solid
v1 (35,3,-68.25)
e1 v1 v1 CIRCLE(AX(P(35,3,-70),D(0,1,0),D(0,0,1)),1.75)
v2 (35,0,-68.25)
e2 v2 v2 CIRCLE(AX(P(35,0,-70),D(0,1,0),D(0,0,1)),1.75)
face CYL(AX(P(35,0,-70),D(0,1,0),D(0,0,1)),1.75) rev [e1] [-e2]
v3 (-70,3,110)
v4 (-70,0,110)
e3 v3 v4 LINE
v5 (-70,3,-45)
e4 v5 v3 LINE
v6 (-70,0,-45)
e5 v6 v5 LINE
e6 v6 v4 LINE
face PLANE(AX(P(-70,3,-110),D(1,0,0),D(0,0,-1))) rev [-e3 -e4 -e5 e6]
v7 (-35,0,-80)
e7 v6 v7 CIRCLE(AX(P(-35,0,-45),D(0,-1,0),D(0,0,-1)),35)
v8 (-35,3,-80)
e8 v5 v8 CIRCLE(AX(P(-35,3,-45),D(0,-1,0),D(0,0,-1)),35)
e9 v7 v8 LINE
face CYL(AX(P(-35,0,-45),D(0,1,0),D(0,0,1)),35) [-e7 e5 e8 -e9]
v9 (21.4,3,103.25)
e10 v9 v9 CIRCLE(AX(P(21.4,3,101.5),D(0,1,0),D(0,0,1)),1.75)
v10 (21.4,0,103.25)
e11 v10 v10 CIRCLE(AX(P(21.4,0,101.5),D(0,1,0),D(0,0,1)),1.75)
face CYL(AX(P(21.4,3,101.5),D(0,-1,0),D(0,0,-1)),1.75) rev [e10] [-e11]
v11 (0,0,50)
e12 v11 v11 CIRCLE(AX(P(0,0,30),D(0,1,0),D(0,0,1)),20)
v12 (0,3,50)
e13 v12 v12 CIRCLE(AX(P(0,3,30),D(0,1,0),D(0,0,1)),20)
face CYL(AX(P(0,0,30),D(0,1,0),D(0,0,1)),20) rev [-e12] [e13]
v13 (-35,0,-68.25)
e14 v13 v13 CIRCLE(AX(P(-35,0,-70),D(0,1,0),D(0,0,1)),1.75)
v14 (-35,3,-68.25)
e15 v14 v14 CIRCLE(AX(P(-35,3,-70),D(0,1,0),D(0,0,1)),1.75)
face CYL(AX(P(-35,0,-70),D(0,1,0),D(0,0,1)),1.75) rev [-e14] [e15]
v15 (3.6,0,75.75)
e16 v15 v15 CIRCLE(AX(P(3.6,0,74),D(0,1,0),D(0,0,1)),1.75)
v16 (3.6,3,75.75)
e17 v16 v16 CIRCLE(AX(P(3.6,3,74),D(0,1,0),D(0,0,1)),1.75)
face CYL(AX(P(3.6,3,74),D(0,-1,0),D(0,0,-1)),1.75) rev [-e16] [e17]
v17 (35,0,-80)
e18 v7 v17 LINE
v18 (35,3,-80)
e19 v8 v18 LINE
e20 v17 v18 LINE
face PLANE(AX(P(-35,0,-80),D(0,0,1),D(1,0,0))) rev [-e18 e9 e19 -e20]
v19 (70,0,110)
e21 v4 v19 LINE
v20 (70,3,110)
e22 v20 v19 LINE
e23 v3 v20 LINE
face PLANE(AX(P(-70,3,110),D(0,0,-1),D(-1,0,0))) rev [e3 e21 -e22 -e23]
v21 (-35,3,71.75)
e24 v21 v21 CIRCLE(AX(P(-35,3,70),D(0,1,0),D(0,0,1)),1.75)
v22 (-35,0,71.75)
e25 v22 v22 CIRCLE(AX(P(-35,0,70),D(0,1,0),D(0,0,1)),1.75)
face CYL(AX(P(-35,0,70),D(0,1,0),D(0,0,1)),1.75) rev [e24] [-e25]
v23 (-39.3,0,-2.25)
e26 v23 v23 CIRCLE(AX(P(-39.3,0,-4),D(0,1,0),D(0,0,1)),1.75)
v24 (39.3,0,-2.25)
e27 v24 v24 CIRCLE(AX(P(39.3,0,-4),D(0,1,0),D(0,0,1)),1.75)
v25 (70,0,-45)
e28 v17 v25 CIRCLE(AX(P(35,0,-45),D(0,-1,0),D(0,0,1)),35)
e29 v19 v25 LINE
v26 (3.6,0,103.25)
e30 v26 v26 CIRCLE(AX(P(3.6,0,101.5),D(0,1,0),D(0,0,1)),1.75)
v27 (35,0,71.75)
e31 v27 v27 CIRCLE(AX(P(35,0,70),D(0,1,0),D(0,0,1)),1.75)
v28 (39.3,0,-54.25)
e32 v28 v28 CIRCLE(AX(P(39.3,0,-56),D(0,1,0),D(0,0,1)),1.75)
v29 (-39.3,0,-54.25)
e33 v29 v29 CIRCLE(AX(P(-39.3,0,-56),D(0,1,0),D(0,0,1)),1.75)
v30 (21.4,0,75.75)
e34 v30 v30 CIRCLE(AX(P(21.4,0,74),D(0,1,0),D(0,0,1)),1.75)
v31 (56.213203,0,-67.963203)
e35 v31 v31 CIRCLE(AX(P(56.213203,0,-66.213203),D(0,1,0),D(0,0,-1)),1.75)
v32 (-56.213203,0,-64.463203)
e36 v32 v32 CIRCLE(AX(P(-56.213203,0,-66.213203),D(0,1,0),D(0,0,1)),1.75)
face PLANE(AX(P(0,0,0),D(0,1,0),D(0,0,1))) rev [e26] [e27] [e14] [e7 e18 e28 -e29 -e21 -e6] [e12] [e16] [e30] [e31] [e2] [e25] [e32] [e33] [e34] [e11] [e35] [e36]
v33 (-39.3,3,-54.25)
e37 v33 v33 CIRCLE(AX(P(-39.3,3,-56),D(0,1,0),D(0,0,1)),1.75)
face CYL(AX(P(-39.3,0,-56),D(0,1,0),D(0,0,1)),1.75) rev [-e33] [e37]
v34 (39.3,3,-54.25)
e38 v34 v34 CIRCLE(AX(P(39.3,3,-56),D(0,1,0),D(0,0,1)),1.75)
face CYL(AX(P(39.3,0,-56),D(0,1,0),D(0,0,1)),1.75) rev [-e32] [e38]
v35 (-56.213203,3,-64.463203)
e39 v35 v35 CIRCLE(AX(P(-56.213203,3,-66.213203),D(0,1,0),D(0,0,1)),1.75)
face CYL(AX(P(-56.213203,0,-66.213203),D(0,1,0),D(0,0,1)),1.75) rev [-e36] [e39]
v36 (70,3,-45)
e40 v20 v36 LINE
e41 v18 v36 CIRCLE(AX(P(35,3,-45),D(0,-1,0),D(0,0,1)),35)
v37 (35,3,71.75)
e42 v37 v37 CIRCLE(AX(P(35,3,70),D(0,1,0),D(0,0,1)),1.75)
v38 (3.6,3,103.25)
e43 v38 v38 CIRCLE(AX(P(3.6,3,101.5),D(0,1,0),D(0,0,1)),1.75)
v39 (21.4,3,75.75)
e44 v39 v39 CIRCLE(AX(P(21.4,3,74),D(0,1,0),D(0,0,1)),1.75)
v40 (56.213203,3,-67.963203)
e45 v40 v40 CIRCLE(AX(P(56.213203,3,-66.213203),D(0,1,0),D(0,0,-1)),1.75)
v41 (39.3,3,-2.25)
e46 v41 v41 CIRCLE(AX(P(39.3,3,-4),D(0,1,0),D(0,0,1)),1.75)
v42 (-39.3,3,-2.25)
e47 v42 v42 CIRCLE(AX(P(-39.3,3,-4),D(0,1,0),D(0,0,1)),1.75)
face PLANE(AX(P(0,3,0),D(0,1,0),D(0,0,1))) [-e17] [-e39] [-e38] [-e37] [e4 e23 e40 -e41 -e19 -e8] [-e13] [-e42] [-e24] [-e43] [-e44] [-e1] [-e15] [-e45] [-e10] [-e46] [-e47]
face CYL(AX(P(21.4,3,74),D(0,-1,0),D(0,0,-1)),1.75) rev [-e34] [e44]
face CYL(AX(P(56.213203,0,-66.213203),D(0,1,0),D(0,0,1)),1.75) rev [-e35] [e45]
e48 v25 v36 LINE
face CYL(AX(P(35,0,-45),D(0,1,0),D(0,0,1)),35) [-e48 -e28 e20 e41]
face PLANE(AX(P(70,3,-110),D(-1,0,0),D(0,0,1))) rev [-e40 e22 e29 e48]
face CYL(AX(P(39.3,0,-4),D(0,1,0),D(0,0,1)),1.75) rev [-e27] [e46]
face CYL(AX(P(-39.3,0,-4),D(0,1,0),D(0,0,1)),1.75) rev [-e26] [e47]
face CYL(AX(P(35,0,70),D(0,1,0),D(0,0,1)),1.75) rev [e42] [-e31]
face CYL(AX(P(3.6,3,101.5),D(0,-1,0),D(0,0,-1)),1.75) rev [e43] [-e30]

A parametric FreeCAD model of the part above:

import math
import FreeCAD as App
import Part
import Sketcher

V = App.Vector


def add_polygon(sketch, points):
    """Adds a closed chain of lines whose ends are joined by coincident constraints."""
    first, n = sketch.GeometryCount, len(points)
    for a, b in zip(points, points[1:] + points[:1]):
        sketch.addGeometry(Part.LineSegment(App.Vector(*a, 0), App.Vector(*b, 0)), False)
    for i in range(n):
        sketch.addConstraint(Sketcher.Constraint("Coincident", first + i, 2, first + (i + 1) % n, 1))

doc = App.newDocument("Part")
body = doc.addObject("PartDesign::Body", "Body")

# Sketch on XZ plane
sketch1 = body.newObject("Sketcher::SketchObject", "Sketch")
sketch1.AttachmentSupport = (doc.getObject("XZ_Plane"), [""])
sketch1.MapMode = "FlatFace"
add_polygon(sketch1, [(-70, -110), (-70, 110), (70, 110), (70, -110)])  # lines 0-3
sketch1.addGeometry(Part.Circle(V(3.6, 101.5, 0), V(0, 0, 1), 1.8), False)  # 4
sketch1.addGeometry(Part.Circle(V(21.4, 101.5, 0), V(0, 0, 1), 1.8), False)  # 5
sketch1.addGeometry(Part.Circle(V(3.6, 74, 0), V(0, 0, 1), 1.8), False)  # 6
sketch1.addGeometry(Part.Circle(V(21.4, 74, 0), V(0, 0, 1), 1.8), False)  # 7
sketch1.addConstraint(Sketcher.Constraint("Vertical", 0))
sketch1.addConstraint(Sketcher.Constraint("Horizontal", 1))
sketch1.addConstraint(Sketcher.Constraint("Vertical", 2))
sketch1.addConstraint(Sketcher.Constraint("Horizontal", 3))
sketch1.addConstraint(Sketcher.Constraint("Equal", 4, 5))
sketch1.addConstraint(Sketcher.Constraint("Equal", 5, 6))
sketch1.addConstraint(Sketcher.Constraint("Equal", 6, 7))
sketch1.addConstraint(Sketcher.Constraint("Symmetric", 0, 2, 2, 2, -1, 1))
sketch1.addConstraint(Sketcher.Constraint("Horizontal", 4, 3, 5, 3))
sketch1.addConstraint(Sketcher.Constraint("Horizontal", 6, 3, 7, 3))
sketch1.addConstraint(Sketcher.Constraint("Vertical", 4, 3, 6, 3))
sketch1.addConstraint(Sketcher.Constraint("Vertical", 5, 3, 7, 3))
sketch1.addConstraint(Sketcher.Constraint("Diameter", 4, 3.5))
sketch1.addConstraint(Sketcher.Constraint("DistanceX", 1, 1, 1, 2, 140.0))
sketch1.addConstraint(Sketcher.Constraint("DistanceY", 0, 1, 0, 2, 220.0))
sketch1.addConstraint(Sketcher.Constraint("DistanceY", -1, 1, 6, 3, 74.0))
sketch1.addConstraint(Sketcher.Constraint("DistanceX", -1, 1, 4, 3, 3.6))
sketch1.addConstraint(Sketcher.Constraint("DistanceY", -1, 1, 4, 3, 101.5))
sketch1.addConstraint(Sketcher.Constraint("DistanceX", -1, 1, 5, 3, 21.4))
pad1 = body.newObject("PartDesign::Pad", "Pad")
pad1.Profile = sketch1
pad1.Length = 3
pad1.Reversed = True

# Sketch on XZ plane
sketch2 = body.newObject("Sketcher::SketchObject", "Sketch001")
sketch2.AttachmentSupport = (doc.getObject("XZ_Plane"), [""])
sketch2.MapMode = "FlatFace"
sketch2.AttachmentOffset = App.Placement(V(0, 0, -3), App.Rotation())
sketch2.addGeometry(Part.Circle(V(-35, -70, 0), V(0, 0, 1), 1.8), False)
sketch2.addGeometry(Part.Circle(V(35, -70, 0), V(0, 0, 1), 1.8), False)
sketch2.addGeometry(Part.Circle(V(-35, 70, 0), V(0, 0, 1), 1.8), False)
sketch2.addGeometry(Part.Circle(V(35, 70, 0), V(0, 0, 1), 1.8), False)
sketch2.addGeometry(Part.Circle(V(0, 30, 0), V(0, 0, 1), 20), False)
sketch2.addConstraint(Sketcher.Constraint("Equal", 0, 1))
sketch2.addConstraint(Sketcher.Constraint("Equal", 1, 2))
sketch2.addConstraint(Sketcher.Constraint("Equal", 2, 3))
sketch2.addConstraint(Sketcher.Constraint("Symmetric", 1, 3, 2, 3, -1, 1))
sketch2.addConstraint(Sketcher.Constraint("Symmetric", 0, 3, 3, 3, -1, 1))
sketch2.addConstraint(Sketcher.Constraint("Symmetric", 0, 3, 1, 3, -2))
sketch2.addConstraint(Sketcher.Constraint("PointOnObject", 4, 3, -2))
sketch2.addConstraint(Sketcher.Constraint("Diameter", 4, 40.0))
sketch2.addConstraint(Sketcher.Constraint("Diameter", 0, 3.5))
sketch2.addConstraint(Sketcher.Constraint("DistanceX", 0, 3, -1, 1, 35.0))
sketch2.addConstraint(Sketcher.Constraint("DistanceY", 0, 3, -1, 1, 70.0))
sketch2.addConstraint(Sketcher.Constraint("DistanceY", -1, 1, 4, 3, 30.0))
pocket1 = body.newObject("PartDesign::Pocket", "Pocket")
pocket1.Profile = sketch2
pocket1.Type = "ThroughAll"
pocket1.Reversed = True

# Sketch on XZ plane
sketch3 = body.newObject("Sketcher::SketchObject", "Sketch002")
sketch3.AttachmentSupport = (doc.getObject("XZ_Plane"), [""])
sketch3.MapMode = "FlatFace"
sketch3.AttachmentOffset = App.Placement(V(0, 0, -3), App.Rotation())
sketch3.addGeometry(Part.Circle(V(-39.3, -56, 0), V(0, 0, 1), 1.8), False)
sketch3.addGeometry(Part.Circle(V(-39.3, -4, 0), V(0, 0, 1), 1.8), False)
sketch3.addGeometry(Part.Circle(V(39.3, -4, 0), V(0, 0, 1), 1.8), False)
sketch3.addGeometry(Part.Circle(V(39.3, -56, 0), V(0, 0, 1), 1.8), False)
sketch3.addGeometry(Part.Circle(V(-56.2, -66.2, 0), V(0, 0, 1), 1.8), False)
sketch3.addGeometry(Part.Circle(V(56.2, -66.2, 0), V(0, 0, 1), 1.8), False)
sketch3.addGeometry(Part.LineSegment(V(-35, -80, 0), V(35, -80, 0)), False)
sketch3.addGeometry(Part.ArcOfCircle(Part.Circle(V(35, -45, 0), V(0, 0, 1), 35), math.radians(-90), math.radians(0)), False)
sketch3.addGeometry(Part.LineSegment(V(70, -45, 0), V(70, -110, 0)), False)
sketch3.addGeometry(Part.LineSegment(V(70, -110, 0), V(-70, -110, 0)), False)
sketch3.addGeometry(Part.LineSegment(V(-70, -110, 0), V(-70, -45, 0)), False)
sketch3.addGeometry(Part.ArcOfCircle(Part.Circle(V(-35, -45, 0), V(0, 0, 1), 35), math.radians(180), math.radians(270)), False)
sketch3.addConstraint(Sketcher.Constraint("Tangent", 6, 2, 7, 1))
sketch3.addConstraint(Sketcher.Constraint("Tangent", 7, 2, 8, 1))
sketch3.addConstraint(Sketcher.Constraint("Coincident", 8, 2, 9, 1))
sketch3.addConstraint(Sketcher.Constraint("Coincident", 9, 2, 10, 1))
sketch3.addConstraint(Sketcher.Constraint("Tangent", 10, 2, 11, 1))
sketch3.addConstraint(Sketcher.Constraint("Tangent", 11, 2, 6, 1))
sketch3.addConstraint(Sketcher.Constraint("Horizontal", 6))
sketch3.addConstraint(Sketcher.Constraint("Vertical", 8))
sketch3.addConstraint(Sketcher.Constraint("Horizontal", 9))
sketch3.addConstraint(Sketcher.Constraint("Vertical", 10))
sketch3.addConstraint(Sketcher.Constraint("Equal", 0, 1))
sketch3.addConstraint(Sketcher.Constraint("Equal", 1, 2))
sketch3.addConstraint(Sketcher.Constraint("Equal", 2, 3))
sketch3.addConstraint(Sketcher.Constraint("Equal", 3, 4))
sketch3.addConstraint(Sketcher.Constraint("Equal", 4, 5))
sketch3.addConstraint(Sketcher.Constraint("Equal", 7, 11))
sketch3.addConstraint(Sketcher.Constraint("Symmetric", 1, 3, 2, 3, -2))
sketch3.addConstraint(Sketcher.Constraint("Symmetric", 0, 3, 3, 3, -2))
sketch3.addConstraint(Sketcher.Constraint("Symmetric", 4, 3, 5, 3, -2))
sketch3.addConstraint(Sketcher.Constraint("Vertical", 0, 3, 1, 3))
sketch3.addConstraint(Sketcher.Constraint("Radius", 7, 35.0))
sketch3.addConstraint(Sketcher.Constraint("Diameter", 0, 3.5))
sketch3.addConstraint(Sketcher.Constraint("DistanceX", 6, 1, 6, 2, 70.0))
sketch3.addConstraint(Sketcher.Constraint("DistanceY", 8, 2, 8, 1, 65.0))
sketch3.addConstraint(Sketcher.Constraint("DistanceY", 0, 3, -1, 1, 56.0))
sketch3.addConstraint(Sketcher.Constraint("DistanceY", 1, 3, -1, 1, 4.0))
sketch3.addConstraint(Sketcher.Constraint("DistanceX", -1, 1, 7, 3, 35.0))
sketch3.addConstraint(Sketcher.Constraint("DistanceY", 7, 3, -1, 1, 45.0))
sketch3.addConstraint(Sketcher.Constraint("DistanceX", 0, 3, -1, 1, 39.3))
sketch3.addConstraint(Sketcher.Constraint("DistanceX", 4, 3, -1, 1, 56.213203))
sketch3.addConstraint(Sketcher.Constraint("DistanceY", 4, 3, -1, 1, 66.213203))
pocket2 = body.newObject("PartDesign::Pocket", "Pocket001")
pocket2.Profile = sketch3
pocket2.Type = "ThroughAll"
pocket2.Reversed = True

doc.recompute()
